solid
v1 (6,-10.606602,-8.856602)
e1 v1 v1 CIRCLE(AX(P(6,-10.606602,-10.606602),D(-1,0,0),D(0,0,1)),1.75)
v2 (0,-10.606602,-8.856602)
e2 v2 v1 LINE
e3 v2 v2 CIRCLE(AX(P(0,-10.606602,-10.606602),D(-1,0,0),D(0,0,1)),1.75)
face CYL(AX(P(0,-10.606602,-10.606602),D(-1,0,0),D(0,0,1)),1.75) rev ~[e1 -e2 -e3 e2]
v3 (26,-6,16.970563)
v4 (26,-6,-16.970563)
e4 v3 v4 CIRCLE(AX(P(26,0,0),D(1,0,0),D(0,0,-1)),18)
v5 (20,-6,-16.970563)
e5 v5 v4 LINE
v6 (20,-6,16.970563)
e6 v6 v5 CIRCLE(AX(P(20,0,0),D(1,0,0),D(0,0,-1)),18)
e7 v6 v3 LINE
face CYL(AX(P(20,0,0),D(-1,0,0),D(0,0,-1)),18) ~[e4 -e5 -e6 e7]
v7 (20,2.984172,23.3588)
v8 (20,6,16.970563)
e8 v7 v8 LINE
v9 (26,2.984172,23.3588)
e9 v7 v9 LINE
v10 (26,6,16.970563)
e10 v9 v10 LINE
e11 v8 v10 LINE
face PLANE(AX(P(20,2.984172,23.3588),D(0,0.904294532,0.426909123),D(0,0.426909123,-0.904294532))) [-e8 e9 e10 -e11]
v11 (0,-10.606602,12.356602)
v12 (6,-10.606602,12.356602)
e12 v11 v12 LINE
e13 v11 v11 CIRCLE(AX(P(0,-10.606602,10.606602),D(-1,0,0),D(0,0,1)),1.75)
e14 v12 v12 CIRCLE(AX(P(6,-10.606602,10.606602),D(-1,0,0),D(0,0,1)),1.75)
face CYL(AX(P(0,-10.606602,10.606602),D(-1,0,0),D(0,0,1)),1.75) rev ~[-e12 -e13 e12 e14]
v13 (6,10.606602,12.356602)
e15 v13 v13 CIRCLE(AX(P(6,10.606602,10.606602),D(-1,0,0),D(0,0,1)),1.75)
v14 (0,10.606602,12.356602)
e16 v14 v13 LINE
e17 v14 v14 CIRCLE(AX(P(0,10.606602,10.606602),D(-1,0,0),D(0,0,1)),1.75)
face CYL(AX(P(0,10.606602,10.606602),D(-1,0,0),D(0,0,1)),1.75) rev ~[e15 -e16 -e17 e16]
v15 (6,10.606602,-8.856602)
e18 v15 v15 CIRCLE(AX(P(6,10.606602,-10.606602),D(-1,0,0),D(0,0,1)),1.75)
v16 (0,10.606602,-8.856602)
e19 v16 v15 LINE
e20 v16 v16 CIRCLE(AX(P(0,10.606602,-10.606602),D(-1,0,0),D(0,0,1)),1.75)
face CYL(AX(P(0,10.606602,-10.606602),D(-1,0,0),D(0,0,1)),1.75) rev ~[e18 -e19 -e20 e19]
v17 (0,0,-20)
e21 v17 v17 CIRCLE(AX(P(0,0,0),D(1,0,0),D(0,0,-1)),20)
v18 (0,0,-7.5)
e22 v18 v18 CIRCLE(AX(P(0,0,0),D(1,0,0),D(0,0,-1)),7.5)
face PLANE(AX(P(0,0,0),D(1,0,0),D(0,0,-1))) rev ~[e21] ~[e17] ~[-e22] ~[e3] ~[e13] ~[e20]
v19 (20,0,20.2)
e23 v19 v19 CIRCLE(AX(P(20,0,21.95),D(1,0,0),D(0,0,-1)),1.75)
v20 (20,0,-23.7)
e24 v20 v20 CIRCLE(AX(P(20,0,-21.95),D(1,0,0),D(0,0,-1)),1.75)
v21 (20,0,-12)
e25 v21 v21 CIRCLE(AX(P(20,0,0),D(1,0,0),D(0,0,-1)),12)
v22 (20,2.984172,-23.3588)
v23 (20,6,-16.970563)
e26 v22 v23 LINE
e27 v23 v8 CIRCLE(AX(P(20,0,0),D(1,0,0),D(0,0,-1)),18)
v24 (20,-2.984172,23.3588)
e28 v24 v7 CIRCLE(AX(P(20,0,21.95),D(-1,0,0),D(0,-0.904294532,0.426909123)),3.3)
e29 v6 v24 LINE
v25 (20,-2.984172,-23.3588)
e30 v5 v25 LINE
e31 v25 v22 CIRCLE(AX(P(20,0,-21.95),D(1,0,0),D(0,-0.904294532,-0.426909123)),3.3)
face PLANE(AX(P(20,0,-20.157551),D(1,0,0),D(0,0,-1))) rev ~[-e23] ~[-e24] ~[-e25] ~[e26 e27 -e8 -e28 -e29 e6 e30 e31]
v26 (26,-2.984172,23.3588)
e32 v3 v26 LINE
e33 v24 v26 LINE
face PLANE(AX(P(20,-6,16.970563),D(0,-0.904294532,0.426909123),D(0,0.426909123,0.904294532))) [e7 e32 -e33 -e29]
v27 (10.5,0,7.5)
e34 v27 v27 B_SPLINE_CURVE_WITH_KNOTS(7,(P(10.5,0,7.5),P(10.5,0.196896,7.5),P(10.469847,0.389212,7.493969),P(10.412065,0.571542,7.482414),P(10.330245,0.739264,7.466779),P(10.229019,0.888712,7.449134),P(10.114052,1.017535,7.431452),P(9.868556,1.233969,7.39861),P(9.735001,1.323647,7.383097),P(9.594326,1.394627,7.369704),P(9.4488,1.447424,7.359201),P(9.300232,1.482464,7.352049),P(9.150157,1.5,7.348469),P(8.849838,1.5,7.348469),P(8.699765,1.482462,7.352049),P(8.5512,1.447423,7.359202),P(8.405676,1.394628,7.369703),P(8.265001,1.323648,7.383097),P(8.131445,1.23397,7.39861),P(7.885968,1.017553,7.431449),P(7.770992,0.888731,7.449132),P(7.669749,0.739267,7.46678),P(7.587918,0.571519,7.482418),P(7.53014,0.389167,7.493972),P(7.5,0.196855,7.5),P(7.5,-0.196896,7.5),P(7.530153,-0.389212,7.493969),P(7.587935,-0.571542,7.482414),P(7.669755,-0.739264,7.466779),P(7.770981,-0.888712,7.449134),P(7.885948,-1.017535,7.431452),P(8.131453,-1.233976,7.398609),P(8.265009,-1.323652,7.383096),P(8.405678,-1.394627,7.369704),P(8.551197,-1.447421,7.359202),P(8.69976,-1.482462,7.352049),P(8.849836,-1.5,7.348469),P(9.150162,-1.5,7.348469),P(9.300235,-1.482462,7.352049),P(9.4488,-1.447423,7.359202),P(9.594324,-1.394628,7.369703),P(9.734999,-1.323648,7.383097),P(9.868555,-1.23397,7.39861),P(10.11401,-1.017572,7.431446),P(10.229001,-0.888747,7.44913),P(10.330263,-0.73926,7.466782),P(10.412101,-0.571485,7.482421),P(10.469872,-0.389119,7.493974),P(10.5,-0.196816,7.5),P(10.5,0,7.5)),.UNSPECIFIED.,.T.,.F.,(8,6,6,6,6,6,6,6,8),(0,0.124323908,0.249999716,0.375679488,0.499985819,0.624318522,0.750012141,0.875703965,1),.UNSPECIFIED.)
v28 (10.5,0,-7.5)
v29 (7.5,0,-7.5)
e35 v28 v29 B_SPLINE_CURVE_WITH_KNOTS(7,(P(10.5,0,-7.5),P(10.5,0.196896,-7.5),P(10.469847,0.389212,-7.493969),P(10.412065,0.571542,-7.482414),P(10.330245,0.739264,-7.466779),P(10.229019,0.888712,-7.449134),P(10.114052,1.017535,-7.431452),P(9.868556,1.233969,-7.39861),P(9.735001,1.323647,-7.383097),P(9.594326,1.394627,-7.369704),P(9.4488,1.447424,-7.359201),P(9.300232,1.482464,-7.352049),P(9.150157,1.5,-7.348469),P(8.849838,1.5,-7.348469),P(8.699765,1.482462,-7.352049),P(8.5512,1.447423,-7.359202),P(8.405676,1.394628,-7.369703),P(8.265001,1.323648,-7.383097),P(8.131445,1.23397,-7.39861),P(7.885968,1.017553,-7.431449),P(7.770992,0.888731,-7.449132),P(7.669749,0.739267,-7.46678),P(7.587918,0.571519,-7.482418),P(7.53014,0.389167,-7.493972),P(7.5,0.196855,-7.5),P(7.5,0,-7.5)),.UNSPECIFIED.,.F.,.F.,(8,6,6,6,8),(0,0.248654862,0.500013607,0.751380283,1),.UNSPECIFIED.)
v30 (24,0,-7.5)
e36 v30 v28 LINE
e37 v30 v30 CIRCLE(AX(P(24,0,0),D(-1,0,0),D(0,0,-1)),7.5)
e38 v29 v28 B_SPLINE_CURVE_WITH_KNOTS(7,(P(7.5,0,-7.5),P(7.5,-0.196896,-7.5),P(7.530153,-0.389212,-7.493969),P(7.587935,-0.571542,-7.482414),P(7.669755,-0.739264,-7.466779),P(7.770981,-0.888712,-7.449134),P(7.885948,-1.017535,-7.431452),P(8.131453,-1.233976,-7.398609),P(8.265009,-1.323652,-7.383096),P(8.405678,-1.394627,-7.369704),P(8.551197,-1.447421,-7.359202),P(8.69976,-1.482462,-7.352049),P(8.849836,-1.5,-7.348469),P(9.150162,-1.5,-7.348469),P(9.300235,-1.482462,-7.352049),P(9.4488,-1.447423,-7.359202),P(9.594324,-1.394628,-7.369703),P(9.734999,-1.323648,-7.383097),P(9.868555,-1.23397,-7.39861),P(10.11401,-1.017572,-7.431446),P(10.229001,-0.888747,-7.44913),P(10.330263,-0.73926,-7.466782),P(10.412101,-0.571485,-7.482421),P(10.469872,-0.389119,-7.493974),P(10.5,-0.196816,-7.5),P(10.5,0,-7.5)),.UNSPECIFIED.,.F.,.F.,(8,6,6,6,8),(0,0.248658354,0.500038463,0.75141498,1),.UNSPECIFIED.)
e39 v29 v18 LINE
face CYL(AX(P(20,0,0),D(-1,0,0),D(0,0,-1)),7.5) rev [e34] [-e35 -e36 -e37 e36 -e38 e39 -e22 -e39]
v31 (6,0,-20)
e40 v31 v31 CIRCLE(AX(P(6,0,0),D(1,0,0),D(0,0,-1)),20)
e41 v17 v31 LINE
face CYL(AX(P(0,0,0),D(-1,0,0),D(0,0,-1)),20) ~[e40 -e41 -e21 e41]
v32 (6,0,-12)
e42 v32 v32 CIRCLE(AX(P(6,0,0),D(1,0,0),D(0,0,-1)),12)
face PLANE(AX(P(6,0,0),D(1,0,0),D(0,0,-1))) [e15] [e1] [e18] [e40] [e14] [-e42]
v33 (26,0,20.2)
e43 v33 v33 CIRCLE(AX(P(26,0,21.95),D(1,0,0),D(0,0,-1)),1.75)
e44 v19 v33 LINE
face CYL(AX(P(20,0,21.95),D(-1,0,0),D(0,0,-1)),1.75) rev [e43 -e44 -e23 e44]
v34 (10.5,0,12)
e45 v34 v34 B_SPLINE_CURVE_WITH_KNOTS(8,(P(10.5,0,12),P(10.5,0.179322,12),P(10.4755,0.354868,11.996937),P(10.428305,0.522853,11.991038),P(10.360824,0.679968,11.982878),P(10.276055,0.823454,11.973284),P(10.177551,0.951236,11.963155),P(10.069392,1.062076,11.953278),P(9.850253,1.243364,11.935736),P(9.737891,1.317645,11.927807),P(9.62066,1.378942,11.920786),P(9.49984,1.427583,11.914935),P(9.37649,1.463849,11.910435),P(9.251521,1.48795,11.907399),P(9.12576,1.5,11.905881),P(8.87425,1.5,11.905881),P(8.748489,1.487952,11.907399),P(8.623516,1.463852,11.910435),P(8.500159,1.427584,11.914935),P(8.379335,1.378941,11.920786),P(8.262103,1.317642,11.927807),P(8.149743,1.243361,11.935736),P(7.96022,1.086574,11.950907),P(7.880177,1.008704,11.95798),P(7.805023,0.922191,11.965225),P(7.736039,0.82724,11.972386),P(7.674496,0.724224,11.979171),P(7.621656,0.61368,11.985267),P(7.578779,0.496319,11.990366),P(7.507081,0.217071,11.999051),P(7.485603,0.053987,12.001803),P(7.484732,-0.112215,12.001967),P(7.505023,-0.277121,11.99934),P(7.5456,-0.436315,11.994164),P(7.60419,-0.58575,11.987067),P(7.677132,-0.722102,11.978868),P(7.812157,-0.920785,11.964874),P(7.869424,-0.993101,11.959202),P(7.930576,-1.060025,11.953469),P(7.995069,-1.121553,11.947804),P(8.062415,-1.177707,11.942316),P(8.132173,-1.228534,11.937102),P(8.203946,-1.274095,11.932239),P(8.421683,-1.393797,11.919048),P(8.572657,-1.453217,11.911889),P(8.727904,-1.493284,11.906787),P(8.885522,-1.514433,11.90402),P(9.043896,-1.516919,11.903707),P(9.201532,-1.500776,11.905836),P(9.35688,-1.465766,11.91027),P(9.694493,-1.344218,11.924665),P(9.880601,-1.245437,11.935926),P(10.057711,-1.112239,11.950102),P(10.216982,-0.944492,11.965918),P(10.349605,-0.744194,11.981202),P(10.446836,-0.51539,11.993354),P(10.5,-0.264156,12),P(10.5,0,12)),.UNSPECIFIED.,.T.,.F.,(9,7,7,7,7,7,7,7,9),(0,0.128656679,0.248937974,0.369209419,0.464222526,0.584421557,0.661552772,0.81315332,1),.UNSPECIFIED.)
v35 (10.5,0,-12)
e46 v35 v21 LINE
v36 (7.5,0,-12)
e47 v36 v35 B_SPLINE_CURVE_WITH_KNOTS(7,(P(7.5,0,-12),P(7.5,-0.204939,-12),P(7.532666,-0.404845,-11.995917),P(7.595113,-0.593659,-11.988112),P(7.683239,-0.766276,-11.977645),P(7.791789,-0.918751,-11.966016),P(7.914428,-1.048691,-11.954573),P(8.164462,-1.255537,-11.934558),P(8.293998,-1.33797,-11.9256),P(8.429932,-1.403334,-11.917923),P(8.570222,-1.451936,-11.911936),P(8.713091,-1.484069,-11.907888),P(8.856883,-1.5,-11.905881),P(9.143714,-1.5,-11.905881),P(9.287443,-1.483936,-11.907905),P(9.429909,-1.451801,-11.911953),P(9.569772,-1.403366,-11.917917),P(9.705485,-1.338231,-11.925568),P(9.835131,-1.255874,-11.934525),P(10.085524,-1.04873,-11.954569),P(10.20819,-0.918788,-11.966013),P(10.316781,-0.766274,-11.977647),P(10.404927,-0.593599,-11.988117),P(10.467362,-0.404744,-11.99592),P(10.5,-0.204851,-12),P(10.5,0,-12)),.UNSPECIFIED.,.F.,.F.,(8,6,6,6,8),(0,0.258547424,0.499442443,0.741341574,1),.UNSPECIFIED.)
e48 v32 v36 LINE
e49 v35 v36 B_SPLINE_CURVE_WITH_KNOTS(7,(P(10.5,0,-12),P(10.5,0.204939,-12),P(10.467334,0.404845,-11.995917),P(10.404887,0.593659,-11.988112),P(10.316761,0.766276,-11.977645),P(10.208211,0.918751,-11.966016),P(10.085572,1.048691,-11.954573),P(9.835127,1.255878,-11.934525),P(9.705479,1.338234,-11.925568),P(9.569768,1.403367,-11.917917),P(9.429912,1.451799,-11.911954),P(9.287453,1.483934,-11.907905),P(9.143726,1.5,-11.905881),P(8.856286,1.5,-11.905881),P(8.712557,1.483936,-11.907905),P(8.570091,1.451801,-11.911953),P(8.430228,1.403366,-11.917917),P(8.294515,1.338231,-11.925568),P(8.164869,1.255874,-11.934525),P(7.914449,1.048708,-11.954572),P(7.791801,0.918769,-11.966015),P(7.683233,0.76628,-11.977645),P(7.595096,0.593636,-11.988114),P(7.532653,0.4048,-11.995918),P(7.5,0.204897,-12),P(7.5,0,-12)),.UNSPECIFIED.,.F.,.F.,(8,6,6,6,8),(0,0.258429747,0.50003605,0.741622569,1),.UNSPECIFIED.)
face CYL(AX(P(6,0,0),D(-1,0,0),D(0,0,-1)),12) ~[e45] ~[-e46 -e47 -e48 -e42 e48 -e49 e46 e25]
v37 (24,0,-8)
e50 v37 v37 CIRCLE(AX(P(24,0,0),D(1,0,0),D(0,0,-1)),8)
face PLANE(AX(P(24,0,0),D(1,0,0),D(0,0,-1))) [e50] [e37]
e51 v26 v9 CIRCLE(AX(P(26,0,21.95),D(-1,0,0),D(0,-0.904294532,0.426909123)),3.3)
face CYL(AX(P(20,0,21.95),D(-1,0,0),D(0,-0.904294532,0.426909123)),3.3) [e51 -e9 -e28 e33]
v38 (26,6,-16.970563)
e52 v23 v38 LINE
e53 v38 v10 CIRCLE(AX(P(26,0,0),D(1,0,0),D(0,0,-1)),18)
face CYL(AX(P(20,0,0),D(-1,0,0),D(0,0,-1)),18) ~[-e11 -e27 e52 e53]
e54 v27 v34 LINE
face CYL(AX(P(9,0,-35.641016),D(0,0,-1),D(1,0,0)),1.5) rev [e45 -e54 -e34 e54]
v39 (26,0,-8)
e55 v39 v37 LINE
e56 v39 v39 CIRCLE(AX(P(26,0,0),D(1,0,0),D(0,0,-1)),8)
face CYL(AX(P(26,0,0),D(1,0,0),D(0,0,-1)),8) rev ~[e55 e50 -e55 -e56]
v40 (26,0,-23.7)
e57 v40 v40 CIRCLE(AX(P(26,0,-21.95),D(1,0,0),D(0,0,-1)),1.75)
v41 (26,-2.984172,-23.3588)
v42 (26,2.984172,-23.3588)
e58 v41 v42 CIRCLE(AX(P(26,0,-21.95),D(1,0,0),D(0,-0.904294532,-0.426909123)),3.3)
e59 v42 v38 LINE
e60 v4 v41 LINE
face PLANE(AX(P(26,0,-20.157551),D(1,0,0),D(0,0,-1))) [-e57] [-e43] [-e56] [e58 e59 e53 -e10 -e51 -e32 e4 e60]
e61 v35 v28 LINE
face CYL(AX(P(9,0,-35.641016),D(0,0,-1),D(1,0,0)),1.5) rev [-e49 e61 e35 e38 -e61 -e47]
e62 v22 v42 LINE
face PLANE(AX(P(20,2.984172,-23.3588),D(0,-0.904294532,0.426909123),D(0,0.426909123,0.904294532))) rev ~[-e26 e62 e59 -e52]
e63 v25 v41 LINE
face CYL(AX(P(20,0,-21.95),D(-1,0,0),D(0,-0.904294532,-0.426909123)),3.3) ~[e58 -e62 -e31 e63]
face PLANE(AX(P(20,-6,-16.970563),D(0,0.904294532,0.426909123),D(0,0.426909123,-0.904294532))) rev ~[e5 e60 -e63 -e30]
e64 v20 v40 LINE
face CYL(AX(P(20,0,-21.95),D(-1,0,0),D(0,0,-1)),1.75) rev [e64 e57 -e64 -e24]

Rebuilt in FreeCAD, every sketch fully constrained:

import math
import FreeCAD as App
import Part
import Sketcher
Q = App.Units.Quantity

doc = App.newDocument("Part")
body = doc.addObject("PartDesign::Body", "Body")

# Sketch on YZ plane
sketch1 = doc.addObject("Sketcher::SketchObject", "Sketch")
body.addObject(sketch1)
sketch1.AttachmentSupport = (doc.YZ_Plane, [""])
sketch1.MapMode = "FlatFace"
sketch1.addGeometry([
    Part.Circle(App.Vector(0, 0, 0), App.Vector(0, 0, 1), 20),
    Part.Circle(App.Vector(0, 0, 0), App.Vector(0, 0, 1), 8),
], False)
sketch1.addConstraint([
    Sketcher.Constraint("Coincident", 0, 3, -1, 1),
    Sketcher.Constraint("Coincident", 1, 3, -1, 1),
    Sketcher.Constraint("Diameter", 0, Q("40 mm")),
    Sketcher.Constraint("Diameter", 1, Q("15 mm")),
])
pad1 = doc.addObject("PartDesign::Pad", "Pad")
body.addObject(pad1)
pad1.Profile = sketch1
pad1.Length = 6

# Sketch on YZ plane
sketch2 = doc.addObject("Sketcher::SketchObject", "Sketch001")
body.addObject(sketch2)
sketch2.AttachmentSupport = (doc.YZ_Plane, [""])
sketch2.MapMode = "FlatFace"
sketch2.AttachmentOffset = App.Placement(App.Vector(0, 0, 6), App.Rotation())
sketch2.addGeometry([
    Part.Circle(App.Vector(0, 0, 0), App.Vector(0, 0, 1), 12),
    Part.Circle(App.Vector(0, 0, 0), App.Vector(0, 0, 1), 8),
], False)
sketch2.addConstraint([
    Sketcher.Constraint("Coincident", 0, 3, -1, 1),
    Sketcher.Constraint("Coincident", 1, 3, -1, 1),
    Sketcher.Constraint("Diameter", 0, Q("24 mm")),
    Sketcher.Constraint("Diameter", 1, Q("15 mm")),
])
pad2 = doc.addObject("PartDesign::Pad", "Pad001")
body.addObject(pad2)
pad2.Profile = sketch2
pad2.Length = 14

# Sketch on XY plane
sketch3 = doc.addObject("Sketcher::SketchObject", "Sketch002")
body.addObject(sketch3)
sketch3.AttachmentSupport = (doc.XY_Plane, [""])
sketch3.MapMode = "FlatFace"
sketch3.addGeometry(Part.Circle(App.Vector(9, 0, 0), App.Vector(0, 0, 1), 1.5), False)
sketch3.addConstraint([
    Sketcher.Constraint("PointOnObject", 0, 3, -1),
    Sketcher.Constraint("Diameter", 0, Q("3 mm")),
    Sketcher.Constraint("DistanceX", -1, 1, 0, 3, Q("9 mm")),
])
pocket1 = doc.addObject("PartDesign::Pocket", "Pocket")
body.addObject(pocket1)
pocket1.Profile = sketch3
pocket1.Type = "ThroughAll"
pocket1.Midplane = True

# Sketch on YZ plane
sketch4 = doc.addObject("Sketcher::SketchObject", "Sketch003")
body.addObject(sketch4)
sketch4.AttachmentSupport = (doc.YZ_Plane, [""])
sketch4.MapMode = "FlatFace"
sketch4.AttachmentOffset = App.Placement(App.Vector(0, 0, 20), App.Rotation())
sketch4.addGeometry([
    Part.Circle(App.Vector(0, 0, 0), App.Vector(0, 0, 1), 18),
    Part.Circle(App.Vector(0, 0, 0), App.Vector(0, 0, 1), 8),
], False)
sketch4.addConstraint([
    Sketcher.Constraint("Coincident", 0, 3, -1, 1),
    Sketcher.Constraint("Coincident", 1, 3, -1, 1),
    Sketcher.Constraint("Diameter", 0, Q("36 mm")),
    Sketcher.Constraint("Diameter", 1, Q("15 mm")),
])
pad3 = doc.addObject("PartDesign::Pad", "Pad002")
body.addObject(pad3)
pad3.Profile = sketch4
pad3.Length = 6

# Sketch on YZ plane
sketch5 = doc.addObject("Sketcher::SketchObject", "Sketch004")
body.addObject(sketch5)
sketch5.AttachmentSupport = (doc.YZ_Plane, [""])
sketch5.MapMode = "FlatFace"
sketch5.AttachmentOffset = App.Placement(App.Vector(0, 0, 20), App.Rotation())
sketch5.addGeometry([
    Part.LineSegment(App.Vector(6, 17, 0), App.Vector(3, 23.4, 0)),  # 0
    Part.ArcOfCircle(Part.Circle(App.Vector(0, 21.9, 0), App.Vector(0, 0, 1), 3.3), math.radians(25), math.radians(155)),  # 1
    Part.LineSegment(App.Vector(-3, 23.4, 0), App.Vector(-6, 17, 0)),  # 2
    Part.ArcOfCircle(Part.Circle(App.Vector(0, 0, 0), App.Vector(0, 0, 1), 18), math.radians(71), math.radians(109)),  # 3
    Part.Circle(App.Vector(0, 21.9, 0), App.Vector(0, 0, 1), 1.8),  # 4
    Part.LineSegment(App.Vector(3, -23.4, 0), App.Vector(6, -17, 0)),  # 5
    Part.ArcOfCircle(Part.Circle(App.Vector(0, 0, 0), App.Vector(0, 0, 1), 18), math.radians(-109), math.radians(-71)),  # 6
    Part.LineSegment(App.Vector(-6, -17, 0), App.Vector(-3, -23.4, 0)),  # 7
    Part.ArcOfCircle(Part.Circle(App.Vector(0, -21.9, 0), App.Vector(0, 0, 1), 3.3), math.radians(-155), math.radians(-25)),  # 8
    Part.Circle(App.Vector(0, -21.9, 0), App.Vector(0, 0, 1), 1.8),  # 9
], False)
sketch5.addConstraint([
    Sketcher.Constraint("Tangent", 0, 2, 1, 1),
    Sketcher.Constraint("Tangent", 1, 2, 2, 1),
    Sketcher.Constraint("Coincident", 2, 2, 3, 2),
    Sketcher.Constraint("Coincident", 3, 1, 0, 1),
    Sketcher.Constraint("Coincident", 5, 2, 6, 2),
    Sketcher.Constraint("Coincident", 6, 1, 7, 1),
    Sketcher.Constraint("Tangent", 7, 2, 8, 1),
    Sketcher.Constraint("Tangent", 8, 2, 5, 1),
    Sketcher.Constraint("Coincident", 3, 3, -1, 1),
    Sketcher.Constraint("Coincident", 6, 3, -1, 1),
    Sketcher.Constraint("Coincident", 4, 3, 1, 3),
    Sketcher.Constraint("Coincident", 9, 3, 8, 3),
    Sketcher.Constraint("Equal", 3, 6),
    Sketcher.Constraint("Equal", 1, 8),
    Sketcher.Constraint("Equal", 4, 9),
    Sketcher.Constraint("Symmetric", 1, 3, 8, 3, -1, 1),
    Sketcher.Constraint("Symmetric", 0, 2, 1, 2, -2),
    Sketcher.Constraint("Parallel", 2, 5),
    Sketcher.Constraint("Parallel", 0, 7),
    Sketcher.Constraint("Radius", 3, Q("18 mm")),
    Sketcher.Constraint("Diameter", 4, Q("3.5 mm")),
    Sketcher.Constraint("Radius", 1, Q("3.3 mm")),
    Sketcher.Constraint("DistanceX", 2, 2, -1, 1, Q("6 mm")),
    Sketcher.Constraint("DistanceY", 8, 3, 1, 3, Q("43.9 mm")),
])
pad4 = doc.addObject("PartDesign::Pad", "Pad003")
body.addObject(pad4)
pad4.Profile = sketch5
pad4.Length = 6

# Sketch on YZ plane
sketch6 = doc.addObject("Sketcher::SketchObject", "Sketch005")
body.addObject(sketch6)
sketch6.AttachmentSupport = (doc.YZ_Plane, [""])
sketch6.MapMode = "FlatFace"
sketch6.addGeometry([
    Part.Circle(App.Vector(10.6, -10.6, 0), App.Vector(0, 0, 1), 1.8),
    Part.Circle(App.Vector(10.6, 10.6, 0), App.Vector(0, 0, 1), 1.8),
    Part.Circle(App.Vector(-10.6, 10.6, 0), App.Vector(0, 0, 1), 1.8),
    Part.Circle(App.Vector(-10.6, -10.6, 0), App.Vector(0, 0, 1), 1.8),
], False)
sketch6.addConstraint([
    Sketcher.Constraint("Equal", 0, 1),
    Sketcher.Constraint("Equal", 1, 2),
    Sketcher.Constraint("Equal", 2, 3),
    Sketcher.Constraint("Symmetric", 0, 3, 2, 3, -1, 1),
    Sketcher.Constraint("Symmetric", 1, 3, 3, 3, -1, 1),
    Sketcher.Constraint("Symmetric", 1, 3, 2, 3, -2),
    Sketcher.Constraint("Diameter", 0, Q("3.5 mm")),
    Sketcher.Constraint("DistanceX", -1, 1, 0, 3, Q("10.606602 mm")),
    Sketcher.Constraint("DistanceY", 0, 3, -1, 1, Q("10.606602 mm")),
])
pocket2 = doc.addObject("PartDesign::Pocket", "Pocket001")
body.addObject(pocket2)
pocket2.Profile = sketch6
pocket2.Length = 6
pocket2.Reversed = True

# Sketch on YZ plane
sketch7 = doc.addObject("Sketcher::SketchObject", "Sketch006")
body.addObject(sketch7)
sketch7.AttachmentSupport = (doc.YZ_Plane, [""])
sketch7.MapMode = "FlatFace"
sketch7.AttachmentOffset = App.Placement(App.Vector(0, 0, 26), App.Rotation())
sketch7.addGeometry(Part.Circle(App.Vector(0, 0, 0), App.Vector(0, 0, 1), 8), False)
sketch7.addConstraint([
    Sketcher.Constraint("Coincident", 0, 3, -1, 1),
    Sketcher.Constraint("Diameter", 0, Q("16 mm")),
])
pocket3 = doc.addObject("PartDesign::Pocket", "Pocket002")
body.addObject(pocket3)
pocket3.Profile = sketch7
pocket3.Length = 2

doc.recompute()
